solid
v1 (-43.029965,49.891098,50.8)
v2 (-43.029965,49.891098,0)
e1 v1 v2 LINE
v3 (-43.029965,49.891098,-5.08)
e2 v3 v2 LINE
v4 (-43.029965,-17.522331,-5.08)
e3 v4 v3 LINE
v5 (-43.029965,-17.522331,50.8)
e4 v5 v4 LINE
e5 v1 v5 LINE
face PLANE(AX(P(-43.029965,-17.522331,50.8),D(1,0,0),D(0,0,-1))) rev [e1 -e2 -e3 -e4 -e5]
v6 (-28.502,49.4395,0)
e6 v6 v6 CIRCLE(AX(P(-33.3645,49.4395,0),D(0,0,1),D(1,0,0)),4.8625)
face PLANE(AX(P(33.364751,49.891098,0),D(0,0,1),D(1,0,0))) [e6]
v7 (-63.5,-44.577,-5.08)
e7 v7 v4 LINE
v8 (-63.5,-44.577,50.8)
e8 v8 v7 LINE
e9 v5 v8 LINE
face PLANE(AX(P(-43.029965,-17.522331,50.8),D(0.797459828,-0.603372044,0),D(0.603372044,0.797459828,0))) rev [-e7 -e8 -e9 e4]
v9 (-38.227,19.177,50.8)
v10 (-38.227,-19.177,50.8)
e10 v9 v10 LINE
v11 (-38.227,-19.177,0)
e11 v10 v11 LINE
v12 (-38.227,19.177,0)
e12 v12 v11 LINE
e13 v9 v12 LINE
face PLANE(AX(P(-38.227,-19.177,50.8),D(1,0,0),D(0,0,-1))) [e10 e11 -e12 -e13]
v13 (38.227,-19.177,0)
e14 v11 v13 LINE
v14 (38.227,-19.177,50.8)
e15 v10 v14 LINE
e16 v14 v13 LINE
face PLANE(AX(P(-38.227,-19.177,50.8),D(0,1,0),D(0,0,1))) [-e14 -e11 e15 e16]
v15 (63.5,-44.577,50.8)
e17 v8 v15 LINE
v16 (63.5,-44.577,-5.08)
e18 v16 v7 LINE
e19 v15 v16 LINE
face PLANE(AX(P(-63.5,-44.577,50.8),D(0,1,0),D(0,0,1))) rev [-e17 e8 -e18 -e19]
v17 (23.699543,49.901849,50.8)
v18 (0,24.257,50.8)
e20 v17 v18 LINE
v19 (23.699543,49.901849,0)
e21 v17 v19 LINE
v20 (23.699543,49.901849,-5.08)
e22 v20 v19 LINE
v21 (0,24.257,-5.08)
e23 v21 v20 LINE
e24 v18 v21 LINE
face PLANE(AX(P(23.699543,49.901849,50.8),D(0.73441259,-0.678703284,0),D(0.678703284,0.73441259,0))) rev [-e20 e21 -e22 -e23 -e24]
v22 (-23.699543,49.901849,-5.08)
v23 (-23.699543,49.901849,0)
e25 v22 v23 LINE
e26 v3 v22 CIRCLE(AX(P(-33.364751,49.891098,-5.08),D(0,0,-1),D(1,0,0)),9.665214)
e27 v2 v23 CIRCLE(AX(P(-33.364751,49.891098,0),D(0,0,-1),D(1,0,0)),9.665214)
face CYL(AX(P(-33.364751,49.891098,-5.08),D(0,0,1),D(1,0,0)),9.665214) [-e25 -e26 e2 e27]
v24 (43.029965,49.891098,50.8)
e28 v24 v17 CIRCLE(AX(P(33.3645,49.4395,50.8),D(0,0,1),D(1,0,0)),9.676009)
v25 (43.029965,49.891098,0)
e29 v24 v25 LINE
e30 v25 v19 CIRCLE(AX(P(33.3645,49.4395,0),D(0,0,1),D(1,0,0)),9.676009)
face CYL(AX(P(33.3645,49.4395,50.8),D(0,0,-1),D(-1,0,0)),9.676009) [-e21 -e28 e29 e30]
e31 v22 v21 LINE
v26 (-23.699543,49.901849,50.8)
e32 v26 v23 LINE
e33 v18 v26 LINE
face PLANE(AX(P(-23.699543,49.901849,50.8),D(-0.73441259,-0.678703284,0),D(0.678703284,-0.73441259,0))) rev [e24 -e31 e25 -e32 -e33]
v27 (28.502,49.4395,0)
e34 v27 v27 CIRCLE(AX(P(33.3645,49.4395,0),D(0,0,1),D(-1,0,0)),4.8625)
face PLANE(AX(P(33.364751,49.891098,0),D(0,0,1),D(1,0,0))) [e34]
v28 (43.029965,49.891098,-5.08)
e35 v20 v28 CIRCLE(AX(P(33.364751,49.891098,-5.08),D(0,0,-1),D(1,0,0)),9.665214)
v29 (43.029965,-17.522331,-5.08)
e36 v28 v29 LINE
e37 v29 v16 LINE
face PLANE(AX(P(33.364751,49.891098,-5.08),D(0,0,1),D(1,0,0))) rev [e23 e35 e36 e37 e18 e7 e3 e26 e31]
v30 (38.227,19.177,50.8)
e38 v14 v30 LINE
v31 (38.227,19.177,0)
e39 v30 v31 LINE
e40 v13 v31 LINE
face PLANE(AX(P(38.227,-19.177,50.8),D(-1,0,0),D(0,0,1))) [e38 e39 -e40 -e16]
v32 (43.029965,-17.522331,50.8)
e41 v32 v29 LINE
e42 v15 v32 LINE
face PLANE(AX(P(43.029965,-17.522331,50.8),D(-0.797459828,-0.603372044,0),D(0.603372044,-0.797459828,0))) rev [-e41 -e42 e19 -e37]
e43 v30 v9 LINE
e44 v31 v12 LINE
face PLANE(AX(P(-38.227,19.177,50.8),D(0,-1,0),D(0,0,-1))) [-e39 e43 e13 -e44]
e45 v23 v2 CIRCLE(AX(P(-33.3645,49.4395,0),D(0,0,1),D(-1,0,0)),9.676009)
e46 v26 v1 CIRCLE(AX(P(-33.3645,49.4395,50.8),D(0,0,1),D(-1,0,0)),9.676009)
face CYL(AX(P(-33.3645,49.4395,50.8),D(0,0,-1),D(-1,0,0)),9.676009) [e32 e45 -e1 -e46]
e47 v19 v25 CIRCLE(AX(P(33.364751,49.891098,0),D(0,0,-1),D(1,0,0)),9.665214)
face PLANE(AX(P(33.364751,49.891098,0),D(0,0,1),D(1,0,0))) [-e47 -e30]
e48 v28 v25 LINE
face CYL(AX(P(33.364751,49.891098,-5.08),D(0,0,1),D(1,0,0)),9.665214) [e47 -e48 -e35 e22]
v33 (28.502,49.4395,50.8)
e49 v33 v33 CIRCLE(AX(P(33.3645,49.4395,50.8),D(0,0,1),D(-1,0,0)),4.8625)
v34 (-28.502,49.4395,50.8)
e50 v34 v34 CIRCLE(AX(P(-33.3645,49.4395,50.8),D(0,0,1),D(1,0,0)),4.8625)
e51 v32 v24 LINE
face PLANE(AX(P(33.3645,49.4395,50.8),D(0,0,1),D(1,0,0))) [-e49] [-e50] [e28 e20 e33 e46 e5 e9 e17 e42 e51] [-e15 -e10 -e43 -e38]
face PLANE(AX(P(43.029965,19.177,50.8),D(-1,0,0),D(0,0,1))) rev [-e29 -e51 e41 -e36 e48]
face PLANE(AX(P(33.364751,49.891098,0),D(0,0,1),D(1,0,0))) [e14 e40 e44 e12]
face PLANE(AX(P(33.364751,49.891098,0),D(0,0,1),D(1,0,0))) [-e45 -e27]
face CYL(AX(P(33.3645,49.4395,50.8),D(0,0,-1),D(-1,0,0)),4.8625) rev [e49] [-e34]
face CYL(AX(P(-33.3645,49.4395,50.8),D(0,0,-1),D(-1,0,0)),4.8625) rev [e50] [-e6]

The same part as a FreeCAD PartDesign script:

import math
import FreeCAD as App
import Part
import Sketcher

V = App.Vector
Q = App.Units.Quantity


def add_polygon(sketch, points):
    """Adds a closed chain of lines whose ends are joined by coincident constraints."""
    first, n = sketch.GeometryCount, len(points)
    for a, b in zip(points, points[1:] + points[:1]):
        sketch.addGeometry(Part.LineSegment(App.Vector(*a, 0), App.Vector(*b, 0)), False)
    for i in range(n):
        sketch.addConstraint(Sketcher.Constraint("Coincident", first + i, 2, first + (i + 1) % n, 1))

doc = App.newDocument("Part")
params = doc.addObject("Spreadsheet::Sheet", "Params")
for row, (alias, value) in enumerate([
    ("sketch1_width", "5 in"),
    ("sketch1_width2", "3.01 in"),
    ("sketch1_height", "1.51 in"),
    ("pad1_length", "2 in"),
    ("sketch2_width", "5 in"),
    ("pad2_length", "0.2 in"),
], start=1):
    params.set(f"A{row}", alias)
    params.set(f"B{row}", "=" + value)
    params.setAlias(f"B{row}", alias)

body = doc.addObject("PartDesign::Body", "Body")

sketch1 = body.newObject("Sketcher::SketchObject", "Sketch")
sketch1.AttachmentSupport = (doc.getObject("XY_Plane"), [""])
sketch1.MapMode = "FlatFace"
sketch1.addGeometry(Part.LineSegment(V(-43, 49.9, 0), V(-43, -17.5, 0)), False)
sketch1.addGeometry(Part.LineSegment(V(-43, -17.5, 0), V(-63.5, -44.6, 0)), False)
sketch1.addGeometry(Part.LineSegment(V(-63.5, -44.6, 0), V(63.5, -44.6, 0)), False)
sketch1.addGeometry(Part.LineSegment(V(63.5, -44.6, 0), V(43, -17.5, 0)), False)
sketch1.addGeometry(Part.LineSegment(V(43, -17.5, 0), V(43, 49.9, 0)), False)
sketch1.addGeometry(Part.ArcOfCircle(Part.Circle(V(33.4, 49.4, 0), V(0, 0, 1), 9.7), math.radians(3), math.radians(177)), False)
sketch1.addGeometry(Part.LineSegment(V(23.7, 49.9, 0), V(0, 24.3, 0)), False)
sketch1.addGeometry(Part.LineSegment(V(0, 24.3, 0), V(-23.7, 49.9, 0)), False)
sketch1.addGeometry(Part.ArcOfCircle(Part.Circle(V(-33.4, 49.4, 0), V(0, 0, 1), 9.7), math.radians(3), math.radians(177)), False)
add_polygon(sketch1, [(-38.2, -19.2), (-38.2, 19.2), (38.2, 19.2), (38.2, -19.2)])
sketch1.addGeometry(Part.Circle(V(33.4, 49.4, 0), V(0, 0, 1), 4.9), False)
sketch1.addGeometry(Part.Circle(V(-33.4, 49.4, 0), V(0, 0, 1), 4.9), False)
sketch1.addConstraint([
    Sketcher.Constraint("Coincident", 0, 2, 1, 1),
    Sketcher.Constraint("Coincident", 1, 2, 2, 1),
    Sketcher.Constraint("Coincident", 2, 2, 3, 1),
    Sketcher.Constraint("Coincident", 3, 2, 4, 1),
    Sketcher.Constraint("Coincident", 4, 2, 5, 1),
    Sketcher.Constraint("Coincident", 5, 2, 6, 1),
    Sketcher.Constraint("Coincident", 6, 2, 7, 1),
    Sketcher.Constraint("Coincident", 7, 2, 8, 1),
    Sketcher.Constraint("Coincident", 8, 2, 0, 1),
    Sketcher.Constraint("Vertical", 0),
    Sketcher.Constraint("Horizontal", 2),
    Sketcher.Constraint("Vertical", 4),
    Sketcher.Constraint("Vertical", 9),
    Sketcher.Constraint("Horizontal", 10),
    Sketcher.Constraint("Vertical", 11),
    Sketcher.Constraint("Horizontal", 12),
    Sketcher.Constraint("Coincident", 13, 3, 5, 3),
    Sketcher.Constraint("Coincident", 14, 3, 8, 3),
    Sketcher.Constraint("Equal", 5, 8),
    Sketcher.Constraint("Equal", 13, 14),
    Sketcher.Constraint("Symmetric", 9, 2, 11, 2, -1, 1),
    Sketcher.Constraint("Symmetric", 5, 3, 8, 3, -2),
    Sketcher.Constraint("Symmetric", 0, 2, 3, 2, -2),
    Sketcher.Constraint("PointOnObject", 6, 2, -2),
    Sketcher.Constraint("Horizontal", 5, 2, 7, 2),
    Sketcher.Constraint("Equal", 1, 3),
    Sketcher.Constraint("DistanceX", 2, 1, 2, 2, Q("5 in")),
    Sketcher.Constraint("DistanceY", 2, 2, 11, 2, Q("1 in")),
    Sketcher.Constraint("DistanceX", 10, 1, 10, 2, Q("3.01 in")),
    Sketcher.Constraint("DistanceY", 9, 1, 9, 2, Q("1.51 in")),
    Sketcher.Constraint("Diameter", 13, Q("9.725 mm")),
    Sketcher.Constraint("DistanceY", 11, 2, 6, 2, Q("1.71 in")),
    Sketcher.Constraint("Radius", 5, Q("9.676009 mm")),
    Sketcher.Constraint("DistanceY", 0, 2, 0, 1, Q("67.413429 mm")),
    Sketcher.Constraint("DistanceX", -1, 1, 5, 3, Q("33.3645 mm")),
    Sketcher.Constraint("DistanceY", -1, 1, 5, 3, Q("49.4395 mm")),
    Sketcher.Constraint("Distance", 1, Q("33.926058 mm")),
    Sketcher.Constraint("DistanceY", -1, 1, 5, 2, Q("49.901849 mm")),
])
sketch1.setExpression("Constraints[30]", "Params.sketch1_width")
sketch1.setExpression("Constraints[32]", "Params.sketch1_width2")
sketch1.setExpression("Constraints[33]", "Params.sketch1_height")
pad1 = body.newObject("PartDesign::Pad", "Pad")
pad1.Profile = sketch1
pad1.setExpression("Length", "Params.pad1_length")

sketch2 = body.newObject("Sketcher::SketchObject", "Sketch001")
sketch2.AttachmentSupport = (doc.getObject("XY_Plane"), [""])
sketch2.MapMode = "FlatFace"
sketch2.addGeometry([
    Part.LineSegment(V(43, 50, 0), V(43, -18, 0)),
    Part.LineSegment(V(43, -18, 0), V(64, -45, 0)),
    Part.LineSegment(V(64, -45, 0), V(-64, -45, 0)),
    Part.LineSegment(V(-64, -45, 0), V(-43, -18, 0)),
    Part.LineSegment(V(-43, -18, 0), V(-43, 50, 0)),
    Part.ArcOfCircle(Part.Circle(V(-33, 50, 0), V(0, 0, 1), 10), math.radians(0), math.radians(180)),
    Part.LineSegment(V(-24, 50, 0), V(0, 24, 0)),
    Part.LineSegment(V(0, 24, 0), V(24, 50, 0)),
    Part.ArcOfCircle(Part.Circle(V(33, 50, 0), V(0, 0, 1), 10), math.radians(0), math.radians(180)),
], False)
sketch2.addConstraint([
    Sketcher.Constraint("Coincident", 0, 2, 1, 1),
    Sketcher.Constraint("Coincident", 1, 2, 2, 1),
    Sketcher.Constraint("Coincident", 2, 2, 3, 1),
    Sketcher.Constraint("Coincident", 3, 2, 4, 1),
    Sketcher.Constraint("Tangent", 4, 2, 5, 2),
    Sketcher.Constraint("Coincident", 5, 1, 6, 1),
    Sketcher.Constraint("Coincident", 6, 2, 7, 1),
    Sketcher.Constraint("Coincident", 7, 2, 8, 2),
    Sketcher.Constraint("Tangent", 8, 1, 0, 1),
    Sketcher.Constraint("Vertical", 0),
    Sketcher.Constraint("Horizontal", 2),
    Sketcher.Constraint("Vertical", 4),
    Sketcher.Constraint("Equal", 5, 8),
    Sketcher.Constraint("Symmetric", 5, 3, 8, 3, -2),
    Sketcher.Constraint("PointOnObject", 6, 2, -2),
    Sketcher.Constraint("Horizontal", 0, 2, 3, 2),
    Sketcher.Constraint("Horizontal", 5, 1, 7, 2),
    Sketcher.Constraint("Equal", 1, 3),
    Sketcher.Constraint("DistanceX", 2, 2, 2, 1, Q("5 in")),
    Sketcher.Constraint("DistanceY", 1, 2, -1, 1, Q("1.755 in")),
    Sketcher.Constraint("DistanceY", -1, 1, 6, 2, Q("0.955 in")),
    Sketcher.Constraint("Radius", 5, Q("9.665214 mm")),
    Sketcher.Constraint("DistanceY", 0, 2, 0, 1, Q("67.413429 mm")),
    Sketcher.Constraint("Distance", 1, Q("33.926058 mm")),
    Sketcher.Constraint("DistanceX", 5, 3, -1, 1, Q("33.364751 mm")),
    Sketcher.Constraint("DistanceY", -1, 1, 5, 1, Q("49.901849 mm")),
])
sketch2.setExpression("Constraints[18]", "Params.sketch2_width")
pad2 = body.newObject("PartDesign::Pad", "Pad001")
pad2.Profile = sketch2
pad2.setExpression("Length", "Params.pad2_length")
pad2.Reversed = True

doc.recompute()
